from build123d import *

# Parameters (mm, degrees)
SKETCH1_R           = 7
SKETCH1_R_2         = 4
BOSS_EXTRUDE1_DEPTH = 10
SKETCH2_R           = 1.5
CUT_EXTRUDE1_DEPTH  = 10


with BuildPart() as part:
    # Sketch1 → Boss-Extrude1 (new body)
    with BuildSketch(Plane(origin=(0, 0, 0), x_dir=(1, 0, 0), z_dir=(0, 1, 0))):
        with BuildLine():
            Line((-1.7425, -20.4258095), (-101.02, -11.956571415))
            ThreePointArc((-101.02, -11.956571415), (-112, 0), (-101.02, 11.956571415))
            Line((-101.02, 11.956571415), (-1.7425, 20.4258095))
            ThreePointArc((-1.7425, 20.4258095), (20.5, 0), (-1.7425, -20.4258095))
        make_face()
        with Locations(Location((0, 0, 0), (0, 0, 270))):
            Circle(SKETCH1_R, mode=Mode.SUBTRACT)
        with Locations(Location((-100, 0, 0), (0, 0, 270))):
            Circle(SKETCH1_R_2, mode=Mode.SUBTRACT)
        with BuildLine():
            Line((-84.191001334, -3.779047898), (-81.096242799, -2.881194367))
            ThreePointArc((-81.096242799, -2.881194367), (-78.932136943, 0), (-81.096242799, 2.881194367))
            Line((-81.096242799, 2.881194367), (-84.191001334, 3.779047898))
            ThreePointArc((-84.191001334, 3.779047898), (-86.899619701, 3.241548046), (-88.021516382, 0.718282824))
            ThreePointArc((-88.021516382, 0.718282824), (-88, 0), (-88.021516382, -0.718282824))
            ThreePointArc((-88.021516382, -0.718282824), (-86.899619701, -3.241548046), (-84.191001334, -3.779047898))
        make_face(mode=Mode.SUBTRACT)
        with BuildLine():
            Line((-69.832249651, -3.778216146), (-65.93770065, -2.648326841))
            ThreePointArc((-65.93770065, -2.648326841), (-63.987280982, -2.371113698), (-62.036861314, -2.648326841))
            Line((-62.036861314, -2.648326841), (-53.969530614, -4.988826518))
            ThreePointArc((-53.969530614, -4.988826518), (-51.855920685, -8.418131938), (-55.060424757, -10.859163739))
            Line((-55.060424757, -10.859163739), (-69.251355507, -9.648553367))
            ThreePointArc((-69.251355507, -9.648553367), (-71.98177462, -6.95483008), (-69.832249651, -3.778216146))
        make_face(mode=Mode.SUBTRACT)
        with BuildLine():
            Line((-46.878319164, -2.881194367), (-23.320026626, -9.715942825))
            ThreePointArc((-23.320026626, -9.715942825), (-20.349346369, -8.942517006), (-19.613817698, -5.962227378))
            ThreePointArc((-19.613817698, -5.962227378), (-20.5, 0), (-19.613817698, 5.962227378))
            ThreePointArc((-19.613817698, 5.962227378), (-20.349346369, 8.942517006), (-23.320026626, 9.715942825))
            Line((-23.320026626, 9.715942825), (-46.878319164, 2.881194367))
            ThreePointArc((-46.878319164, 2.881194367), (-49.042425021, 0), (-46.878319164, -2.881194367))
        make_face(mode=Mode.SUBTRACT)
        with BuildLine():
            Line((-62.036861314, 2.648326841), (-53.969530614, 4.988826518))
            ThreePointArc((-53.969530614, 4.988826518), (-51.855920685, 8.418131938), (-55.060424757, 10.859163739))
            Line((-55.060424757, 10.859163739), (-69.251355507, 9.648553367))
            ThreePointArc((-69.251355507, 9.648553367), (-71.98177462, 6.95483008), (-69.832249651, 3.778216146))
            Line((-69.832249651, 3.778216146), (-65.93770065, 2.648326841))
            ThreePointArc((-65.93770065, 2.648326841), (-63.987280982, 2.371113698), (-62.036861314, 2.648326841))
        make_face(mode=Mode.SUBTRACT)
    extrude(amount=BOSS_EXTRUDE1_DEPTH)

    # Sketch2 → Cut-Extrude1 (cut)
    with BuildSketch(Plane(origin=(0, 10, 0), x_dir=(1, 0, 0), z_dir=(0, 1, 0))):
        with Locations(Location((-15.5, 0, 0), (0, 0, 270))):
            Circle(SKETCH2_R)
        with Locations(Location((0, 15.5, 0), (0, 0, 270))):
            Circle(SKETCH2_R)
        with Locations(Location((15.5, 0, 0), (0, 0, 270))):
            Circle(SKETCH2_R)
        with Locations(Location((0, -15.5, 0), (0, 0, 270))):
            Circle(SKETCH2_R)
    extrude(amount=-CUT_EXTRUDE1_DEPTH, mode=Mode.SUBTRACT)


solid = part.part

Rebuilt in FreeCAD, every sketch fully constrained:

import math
import FreeCAD as App
import Part
import Sketcher

doc = App.newDocument("Part")
params = doc.addObject("Spreadsheet::Sheet", "Params")
for row, (alias, value) in enumerate([
    ("sketch1_diameter", "14 mm"),
    ("sketch1_diameter2", "8 mm"),
    ("sketch1_radius", "12 mm"),
    ("sketch1_radius2", "3 mm"),
    ("sketch1_radius3", "20.5 mm"),
    ("pad1_length", "10 mm"),
    ("sketch2_diameter", "3 mm"),
    ("pocket1_length", "10 mm"),
], start=1):
    params.set(f"A{row}", alias)
    params.set(f"B{row}", "=" + value)
    params.setAlias(f"B{row}", alias)

body = doc.addObject("PartDesign::Body", "Body")

# Sketch on XZ plane
sketch1 = body.newObject("Sketcher::SketchObject", "Sketch")
sketch1.AttachmentSupport = (doc.getObject("XZ_Plane"), [""])
sketch1.MapMode = "FlatFace"
sketch1.addGeometry(Part.LineSegment(App.Vector(-101, 12, 0), App.Vector(-1.7, 20.4, 0)), False)
sketch1.addGeometry(Part.ArcOfCircle(Part.Circle(App.Vector(0, 0, 0), App.Vector(0, 0, 1), 20.5), math.radians(-95), math.radians(95)), False)
sketch1.addGeometry(Part.LineSegment(App.Vector(-1.7, -20.4, 0), App.Vector(-101, -12, 0)), False)
sketch1.addGeometry(Part.ArcOfCircle(Part.Circle(App.Vector(-100, 0, 0), App.Vector(0, 0, 1), 12), math.radians(95), math.radians(265)), False)
sketch1.addGeometry(Part.LineSegment(App.Vector(-69.8, 3.8, 0), App.Vector(-65.9, 2.6, 0)), False)
sketch1.addGeometry(Part.ArcOfCircle(Part.Circle(App.Vector(-64, 9.4, 0), App.Vector(0, 0, 1), 7), math.radians(-106), math.radians(-74)), False)
sketch1.addGeometry(Part.LineSegment(App.Vector(-62, 2.6, 0), App.Vector(-54, 5, 0)), False)
sketch1.addGeometry(Part.ArcOfCircle(Part.Circle(App.Vector(-54.8, 7.9, 0), App.Vector(0, 0, 1), 3), math.radians(-74), math.radians(95)), False)
sketch1.addGeometry(Part.LineSegment(App.Vector(-55.1, 10.9, 0), App.Vector(-69.3, 9.6, 0)), False)
sketch1.addGeometry(Part.ArcOfCircle(Part.Circle(App.Vector(-69, 6.7, 0), App.Vector(0, 0, 1), 3), math.radians(95), math.radians(254)), False)
sketch1.addGeometry(Part.ArcOfCircle(Part.Circle(App.Vector(-85, 0.9, 0), App.Vector(0, 0, 1), 3), math.radians(74), math.radians(183)), False)
sketch1.addGeometry(Part.ArcOfCircle(Part.Circle(App.Vector(-100, 0, 0), App.Vector(0, 0, 1), 12), math.radians(-3.43), math.radians(3.43)), False)
sketch1.addGeometry(Part.ArcOfCircle(Part.Circle(App.Vector(-85, -0.9, 0), App.Vector(0, 0, 1), 3), math.radians(177), math.radians(286)), False)
sketch1.addGeometry(Part.LineSegment(App.Vector(-84.2, -3.8, 0), App.Vector(-81.1, -2.9, 0)), False)
sketch1.addGeometry(Part.ArcOfCircle(Part.Circle(App.Vector(-81.9, 0, 0), App.Vector(0, 0, 1), 3), math.radians(-74), math.radians(74)), False)
sketch1.addGeometry(Part.LineSegment(App.Vector(-81.1, 2.9, 0), App.Vector(-84.2, 3.8, 0)), False)
sketch1.addGeometry(Part.Circle(App.Vector(0, 0, 0), App.Vector(0, 0, 1), 7), False)
sketch1.addGeometry(Part.ArcOfCircle(Part.Circle(App.Vector(-46, 0, 0), App.Vector(0, 0, 1), 3), math.radians(106), math.radians(254)), False)
sketch1.addGeometry(Part.LineSegment(App.Vector(-46.9, -2.9, 0), App.Vector(-23.3, -9.7, 0)), False)
sketch1.addGeometry(Part.ArcOfCircle(Part.Circle(App.Vector(-22.5, -6.8, 0), App.Vector(0, 0, 1), 3), math.radians(-106), math.radians(17)), False)
sketch1.addGeometry(Part.ArcOfCircle(Part.Circle(App.Vector(0, 0, 0), App.Vector(0, 0, 1), 20.5), math.radians(163), math.radians(197)), False)
sketch1.addGeometry(Part.ArcOfCircle(Part.Circle(App.Vector(-22.5, 6.8, 0), App.Vector(0, 0, 1), 3), math.radians(-17), math.radians(106)), False)
sketch1.addGeometry(Part.LineSegment(App.Vector(-23.3, 9.7, 0), App.Vector(-46.9, 2.9, 0)), False)
sketch1.addGeometry(Part.Circle(App.Vector(-100, 0, 0), App.Vector(0, 0, 1), 4), False)
sketch1.addGeometry(Part.ArcOfCircle(Part.Circle(App.Vector(-64, -9.4, 0), App.Vector(0, 0, 1), 7), math.radians(74), math.radians(106)), False)
sketch1.addGeometry(Part.LineSegment(App.Vector(-65.9, -2.6, 0), App.Vector(-69.8, -3.8, 0)), False)
sketch1.addGeometry(Part.ArcOfCircle(Part.Circle(App.Vector(-69, -6.7, 0), App.Vector(0, 0, 1), 3), math.radians(106), math.radians(265)), False)
sketch1.addGeometry(Part.LineSegment(App.Vector(-69.3, -9.6, 0), App.Vector(-55.1, -10.9, 0)), False)
sketch1.addGeometry(Part.ArcOfCircle(Part.Circle(App.Vector(-54.8, -7.9, 0), App.Vector(0, 0, 1), 3), math.radians(-95), math.radians(74)), False)
sketch1.addGeometry(Part.LineSegment(App.Vector(-54, -5, 0), App.Vector(-62, -2.6, 0)), False)
sketch1.addConstraint(Sketcher.Constraint("Tangent", 0, 2, 1, 2))
sketch1.addConstraint(Sketcher.Constraint("Tangent", 1, 1, 2, 1))
sketch1.addConstraint(Sketcher.Constraint("Tangent", 2, 2, 3, 2))
sketch1.addConstraint(Sketcher.Constraint("Tangent", 3, 1, 0, 1))
sketch1.addConstraint(Sketcher.Constraint("Tangent", 4, 2, 5, 1))
sketch1.addConstraint(Sketcher.Constraint("Tangent", 5, 2, 6, 1))
sketch1.addConstraint(Sketcher.Constraint("Tangent", 6, 2, 7, 1))
sketch1.addConstraint(Sketcher.Constraint("Tangent", 7, 2, 8, 1))
sketch1.addConstraint(Sketcher.Constraint("Tangent", 8, 2, 9, 1))
sketch1.addConstraint(Sketcher.Constraint("Tangent", 9, 2, 4, 1))
sketch1.addConstraint(Sketcher.Constraint("Tangent", 10, 2, 11, 2))
sketch1.addConstraint(Sketcher.Constraint("Tangent", 11, 1, 12, 1))
sketch1.addConstraint(Sketcher.Constraint("Tangent", 12, 2, 13, 1))
sketch1.addConstraint(Sketcher.Constraint("Tangent", 13, 2, 14, 1))
sketch1.addConstraint(Sketcher.Constraint("Tangent", 14, 2, 15, 1))
sketch1.addConstraint(Sketcher.Constraint("Tangent", 15, 2, 10, 1))
sketch1.addConstraint(Sketcher.Constraint("Tangent", 17, 2, 18, 1))
sketch1.addConstraint(Sketcher.Constraint("Tangent", 18, 2, 19, 1))
sketch1.addConstraint(Sketcher.Constraint("Tangent", 19, 2, 20, 2))
sketch1.addConstraint(Sketcher.Constraint("Tangent", 20, 1, 21, 1))
sketch1.addConstraint(Sketcher.Constraint("Tangent", 21, 2, 22, 1))
sketch1.addConstraint(Sketcher.Constraint("Tangent", 22, 2, 17, 1))
sketch1.addConstraint(Sketcher.Constraint("Tangent", 24, 2, 25, 1))
sketch1.addConstraint(Sketcher.Constraint("Tangent", 25, 2, 26, 1))
sketch1.addConstraint(Sketcher.Constraint("Tangent", 26, 2, 27, 1))
sketch1.addConstraint(Sketcher.Constraint("Tangent", 27, 2, 28, 1))
sketch1.addConstraint(Sketcher.Constraint("Tangent", 28, 2, 29, 1))
sketch1.addConstraint(Sketcher.Constraint("Tangent", 29, 2, 24, 1))
sketch1.addConstraint(Sketcher.Constraint("Coincident", 1, 3, -1, 1))
sketch1.addConstraint(Sketcher.Constraint("Coincident", 16, 3, -1, 1))
sketch1.addConstraint(Sketcher.Constraint("Coincident", 20, 3, -1, 1))
sketch1.addConstraint(Sketcher.Constraint("Coincident", 11, 3, 3, 3))
sketch1.addConstraint(Sketcher.Constraint("Coincident", 23, 3, 3, 3))
sketch1.addConstraint(Sketcher.Constraint("Equal", 7, 9))
sketch1.addConstraint(Sketcher.Constraint("Equal", 9, 10))
sketch1.addConstraint(Sketcher.Constraint("Equal", 3, 11))
sketch1.addConstraint(Sketcher.Constraint("Equal", 10, 12))
sketch1.addConstraint(Sketcher.Constraint("Equal", 12, 14))
sketch1.addConstraint(Sketcher.Constraint("Equal", 5, 16))
sketch1.addConstraint(Sketcher.Constraint("Equal", 14, 17))
sketch1.addConstraint(Sketcher.Constraint("Equal", 17, 19))
sketch1.addConstraint(Sketcher.Constraint("Equal", 1, 20))
sketch1.addConstraint(Sketcher.Constraint("Equal", 19, 21))
sketch1.addConstraint(Sketcher.Constraint("Equal", 16, 24))
sketch1.addConstraint(Sketcher.Constraint("Equal", 21, 26))
sketch1.addConstraint(Sketcher.Constraint("Equal", 26, 28))
sketch1.addConstraint(Sketcher.Constraint("Symmetric", 10, 3, 12, 3, -1))
sketch1.addConstraint(Sketcher.Constraint("Symmetric", 5, 3, 24, 3, -1))
sketch1.addConstraint(Sketcher.Constraint("Symmetric", 9, 3, 26, 3, -1))
sketch1.addConstraint(Sketcher.Constraint("Symmetric", 7, 3, 28, 3, -1))
sketch1.addConstraint(Sketcher.Constraint("Symmetric", 18, 2, 21, 2, -1))
sketch1.addConstraint(Sketcher.Constraint("PointOnObject", 14, 3, -1))
sketch1.addConstraint(Sketcher.Constraint("Parallel", 0, 8))
sketch1.addConstraint(Sketcher.Constraint("Parallel", 6, 13))
sketch1.addConstraint(Sketcher.Constraint("Parallel", 4, 15))
sketch1.addConstraint(Sketcher.Constraint("Parallel", 15, 18))
sketch1.addConstraint(Sketcher.Constraint("Diameter", 16, 14.0))
sketch1.addConstraint(Sketcher.Constraint("Diameter", 23, 8.0))
sketch1.addConstraint(Sketcher.Constraint("Radius", 3, 12.0))
sketch1.addConstraint(Sketcher.Constraint("Radius", 7, 3.0))
sketch1.addConstraint(Sketcher.Constraint("Radius", 1, 20.5))
sketch1.addConstraint(Sketcher.Constraint("DistanceX", 3, 3, -1, 1, 100.0))
sketch1.addConstraint(Sketcher.Constraint("DistanceX", 12, 2, -1, 1, 84.191001))
sketch1.addConstraint(Sketcher.Constraint("DistanceX", 7, 3, 17, 3, 8.763))
sketch1.addConstraint(Sketcher.Constraint("DistanceX", 4, 2, -1, 1, 65.937701))
sketch1.addConstraint(Sketcher.Constraint("DistanceY", 5, 2, 6, 2, 2.3405))
sketch1.addConstraint(Sketcher.Constraint("DistanceY", 12, 2, 10, 3, 4.676901))
sketch1.addConstraint(Sketcher.Constraint("DistanceY", -1, 1, 7, 3, 7.870021))
sketch1.setExpression("Constraints[56]", "Params.sketch1_diameter")
sketch1.setExpression("Constraints[57]", "Params.sketch1_diameter2")
sketch1.setExpression("Constraints[58]", "Params.sketch1_radius")
sketch1.setExpression("Constraints[59]", "Params.sketch1_radius2")
sketch1.setExpression("Constraints[60]", "Params.sketch1_radius3")
pad1 = body.newObject("PartDesign::Pad", "Pad")
pad1.Profile = sketch1
pad1.setExpression("Length", "Params.pad1_length")
pad1.Reversed = True

# Sketch on XZ plane
sketch2 = body.newObject("Sketcher::SketchObject", "Sketch001")
sketch2.AttachmentSupport = (doc.getObject("XZ_Plane"), [""])
sketch2.MapMode = "FlatFace"
sketch2.AttachmentOffset = App.Placement(App.Vector(0, 0, -10), App.Rotation())
sketch2.addGeometry(Part.Circle(App.Vector(-15.5, 0, 0), App.Vector(0, 0, 1), 1.5), False)
sketch2.addGeometry(Part.Circle(App.Vector(0, -15.5, 0), App.Vector(0, 0, 1), 1.5), False)
sketch2.addGeometry(Part.Circle(App.Vector(15.5, 0, 0), App.Vector(0, 0, 1), 1.5), False)
sketch2.addGeometry(Part.Circle(App.Vector(0, 15.5, 0), App.Vector(0, 0, 1), 1.5), False)
sketch2.addConstraint(Sketcher.Constraint("Equal", 0, 1))
sketch2.addConstraint(Sketcher.Constraint("Equal", 1, 2))
sketch2.addConstraint(Sketcher.Constraint("Equal", 2, 3))
sketch2.addConstraint(Sketcher.Constraint("Symmetric", 0, 3, 2, 3, -1, 1))
sketch2.addConstraint(Sketcher.Constraint("Symmetric", 1, 3, 3, 3, -1, 1))
sketch2.addConstraint(Sketcher.Constraint("PointOnObject", 0, 3, -1))
sketch2.addConstraint(Sketcher.Constraint("PointOnObject", 1, 3, -2))
sketch2.addConstraint(Sketcher.Constraint("Diameter", 0, 3.0))
sketch2.addConstraint(Sketcher.Constraint("DistanceX", 0, 3, 2, 3, 31.0))
sketch2.addConstraint(Sketcher.Constraint("DistanceY", 1, 3, 3, 3, 31.0))
sketch2.setExpression("Constraints[7]", "Params.sketch2_diameter")
pocket1 = body.newObject("PartDesign::Pocket", "Pocket")
pocket1.Profile = sketch2
pocket1.setExpression("Length", "Params.pocket1_length")
pocket1.Reversed = True

doc.recompute()
